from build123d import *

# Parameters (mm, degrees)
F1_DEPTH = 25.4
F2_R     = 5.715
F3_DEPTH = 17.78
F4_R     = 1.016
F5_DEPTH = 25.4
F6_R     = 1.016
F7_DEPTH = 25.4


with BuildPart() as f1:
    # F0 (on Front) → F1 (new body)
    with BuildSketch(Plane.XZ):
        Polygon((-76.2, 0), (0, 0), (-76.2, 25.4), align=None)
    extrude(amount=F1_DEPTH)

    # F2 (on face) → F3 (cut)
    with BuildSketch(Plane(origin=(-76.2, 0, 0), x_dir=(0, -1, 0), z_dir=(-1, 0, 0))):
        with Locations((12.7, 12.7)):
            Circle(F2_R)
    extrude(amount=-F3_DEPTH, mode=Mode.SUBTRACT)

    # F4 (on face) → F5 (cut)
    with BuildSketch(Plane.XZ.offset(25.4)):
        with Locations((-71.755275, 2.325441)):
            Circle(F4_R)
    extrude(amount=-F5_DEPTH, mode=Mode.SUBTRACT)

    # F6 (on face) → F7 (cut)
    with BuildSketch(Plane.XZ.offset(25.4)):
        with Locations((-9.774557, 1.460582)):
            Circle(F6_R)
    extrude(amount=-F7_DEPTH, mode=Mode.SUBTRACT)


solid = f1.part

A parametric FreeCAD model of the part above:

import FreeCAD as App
import Part
import Sketcher

V = App.Vector
Q = App.Units.Quantity


def add_polygon(sketch, points):
    """Adds a closed chain of lines whose ends are joined by coincident constraints."""
    first, n = sketch.GeometryCount, len(points)
    for a, b in zip(points, points[1:] + points[:1]):
        sketch.addGeometry(Part.LineSegment(App.Vector(*a, 0), App.Vector(*b, 0)), False)
    for i in range(n):
        sketch.addConstraint(Sketcher.Constraint("Coincident", first + i, 2, first + (i + 1) % n, 1))

doc = App.newDocument("Part")
params = doc.addObject("Spreadsheet::Sheet", "Params")
for row, (alias, value) in enumerate([
    ("sketch1_width", "3 in"),
    ("sketch1_height", "1 in"),
    ("pad1_length", "1 in"),
    ("sketch2_diameter", "0.45 in"),
    ("pocket1_length", "0.7 in"),
    ("sketch3_diameter", "0.08 in"),
    ("pocket2_length", "1 in"),
    ("sketch4_diameter", "0.08 in"),
    ("pocket3_length", "1 in"),
], start=1):
    params.set(f"A{row}", alias)
    params.set(f"B{row}", "=" + value)
    params.setAlias(f"B{row}", alias)

body = doc.addObject("PartDesign::Body", "Body")

# Sketch on XZ plane
sketch1 = body.newObject("Sketcher::SketchObject", "Sketch")
sketch1.AttachmentSupport = (doc.getObject("XZ_Plane"), [""])
sketch1.MapMode = "FlatFace"
add_polygon(sketch1, [(-76, 0), (0, 0), (-76, 25)])  # lines 0-2
sketch1.addConstraint([
    Sketcher.Constraint("Horizontal", 0),
    Sketcher.Constraint("Vertical", 2),
    Sketcher.Constraint("Coincident", 0, 2, -1, 1),
    Sketcher.Constraint("DistanceX", 0, 1, 0, 2, Q("3 in")),
    Sketcher.Constraint("DistanceY", 2, 2, 2, 1, Q("1 in")),
])
sketch1.setExpression("Constraints[6]", "Params.sketch1_width")
sketch1.setExpression("Constraints[7]", "Params.sketch1_height")
pad1 = body.newObject("PartDesign::Pad", "Pad")
pad1.Profile = sketch1
pad1.setExpression("Length", "Params.pad1_length")

# Sketch on YZ plane
sketch2 = body.newObject("Sketcher::SketchObject", "Sketch001")
sketch2.AttachmentSupport = (doc.getObject("YZ_Plane"), [""])
sketch2.MapMode = "FlatFace"
sketch2.AttachmentOffset = App.Placement(V(0, 0, -3 * 25.4), App.Rotation())
sketch2.addGeometry(Part.Circle(V(-13, 13, 0), V(0, 0, 1), 6), False)
sketch2.addConstraint([
    Sketcher.Constraint("Diameter", 0, Q("0.45 in")),
    Sketcher.Constraint("DistanceX", 0, 3, -1, 1, Q("0.5 in")),
    Sketcher.Constraint("DistanceY", -1, 1, 0, 3, Q("0.5 in")),
])
sketch2.setExpression("Constraints[0]", "Params.sketch2_diameter")
pocket1 = body.newObject("PartDesign::Pocket", "Pocket")
pocket1.Profile = sketch2
pocket1.setExpression("Length", "Params.pocket1_length")
pocket1.Reversed = True

# Sketch on XZ plane
sketch3 = body.newObject("Sketcher::SketchObject", "Sketch002")
sketch3.AttachmentSupport = (doc.getObject("XZ_Plane"), [""])
sketch3.MapMode = "FlatFace"
sketch3.AttachmentOffset = App.Placement(V(0, 0, 1 * 25.4), App.Rotation())
sketch3.addGeometry(Part.Circle(V(-71.8, 2.3, 0), V(0, 0, 1), 1), False)
sketch3.addConstraint([
    Sketcher.Constraint("Diameter", 0, Q("0.08 in")),
    Sketcher.Constraint("DistanceY", -1, 1, 0, 3, Q("2.325441 mm")),
    Sketcher.Constraint("DistanceX", 0, 3, -1, 1, Q("71.755275 mm")),
])
sketch3.setExpression("Constraints[0]", "Params.sketch3_diameter")
pocket2 = body.newObject("PartDesign::Pocket", "Pocket001")
pocket2.Profile = sketch3
pocket2.setExpression("Length", "Params.pocket2_length")

# Sketch on XZ plane
sketch4 = body.newObject("Sketcher::SketchObject", "Sketch003")
sketch4.AttachmentSupport = (doc.getObject("XZ_Plane"), [""])
sketch4.MapMode = "FlatFace"
sketch4.AttachmentOffset = App.Placement(V(0, 0, 1 * 25.4), App.Rotation())
sketch4.addGeometry(Part.Circle(V(-9.8, 1.5, 0), V(0, 0, 1), 1), False)
sketch4.addConstraint([
    Sketcher.Constraint("Diameter", 0, Q("0.08 in")),
    Sketcher.Constraint("DistanceX", 0, 3, -1, 1, Q("9.774557 mm")),
    Sketcher.Constraint("DistanceY", -1, 1, 0, 3, Q("1.460582 mm")),
])
sketch4.setExpression("Constraints[0]", "Params.sketch4_diameter")
pocket3 = body.newObject("PartDesign::Pocket", "Pocket002")
pocket3.Profile = sketch4
pocket3.setExpression("Length", "Params.pocket3_length")

doc.recompute()
